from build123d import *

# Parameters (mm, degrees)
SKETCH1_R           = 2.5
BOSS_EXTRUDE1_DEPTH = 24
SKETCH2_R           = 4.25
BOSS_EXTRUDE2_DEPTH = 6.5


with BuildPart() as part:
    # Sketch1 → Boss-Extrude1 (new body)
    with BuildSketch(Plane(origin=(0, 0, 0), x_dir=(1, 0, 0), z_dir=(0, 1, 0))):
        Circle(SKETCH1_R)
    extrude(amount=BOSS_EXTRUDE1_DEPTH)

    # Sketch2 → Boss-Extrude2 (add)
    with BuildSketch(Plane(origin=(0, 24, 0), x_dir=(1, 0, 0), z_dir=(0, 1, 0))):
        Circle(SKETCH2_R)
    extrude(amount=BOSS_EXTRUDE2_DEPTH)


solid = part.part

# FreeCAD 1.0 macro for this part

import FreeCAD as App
import Part
import Sketcher

V = App.Vector
Q = App.Units.Quantity

doc = App.newDocument("Part")
params = doc.addObject("Spreadsheet::Sheet", "Params")
for row, (alias, value) in enumerate([
    ("sketch1_diameter", "5 mm"),
    ("pad1_length", "24 mm"),
    ("sketch2_diameter", "8.5 mm"),
    ("pad2_length", "6.5 mm"),
], start=1):
    params.set(f"A{row}", alias)
    params.set(f"B{row}", "=" + value)
    params.setAlias(f"B{row}", alias)

body = doc.addObject("PartDesign::Body", "Body")

# Sketch on XZ plane
sketch1 = body.newObject("Sketcher::SketchObject", "Sketch")
sketch1.AttachmentSupport = (doc.getObject("XZ_Plane"), [""])
sketch1.MapMode = "FlatFace"
sketch1.addGeometry(Part.Circle(V(0, 0, 0), V(0, 0, 1), 2.5), False)
sketch1.addConstraint([
    Sketcher.Constraint("Coincident", 0, 3, -1, 1),
    Sketcher.Constraint("Diameter", 0, Q("5 mm")),
])
sketch1.setExpression("Constraints[1]", "Params.sketch1_diameter")
pad1 = body.newObject("PartDesign::Pad", "Pad")
pad1.Profile = sketch1
pad1.setExpression("Length", "Params.pad1_length")
pad1.Reversed = True

# Sketch on XZ plane
sketch2 = body.newObject("Sketcher::SketchObject", "Sketch001")
sketch2.AttachmentSupport = (doc.getObject("XZ_Plane"), [""])
sketch2.MapMode = "FlatFace"
sketch2.AttachmentOffset = App.Placement(V(0, 0, -24), App.Rotation())
sketch2.addGeometry(Part.Circle(V(0, 0, 0), V(0, 0, 1), 4.2), False)
sketch2.addConstraint([
    Sketcher.Constraint("Coincident", 0, 3, -1, 1),
    Sketcher.Constraint("Diameter", 0, Q("8.5 mm")),
])
sketch2.setExpression("Constraints[1]", "Params.sketch2_diameter")
pad2 = body.newObject("PartDesign::Pad", "Pad001")
pad2.Profile = sketch2
pad2.setExpression("Length", "Params.pad2_length")
pad2.Reversed = True

doc.recompute()
